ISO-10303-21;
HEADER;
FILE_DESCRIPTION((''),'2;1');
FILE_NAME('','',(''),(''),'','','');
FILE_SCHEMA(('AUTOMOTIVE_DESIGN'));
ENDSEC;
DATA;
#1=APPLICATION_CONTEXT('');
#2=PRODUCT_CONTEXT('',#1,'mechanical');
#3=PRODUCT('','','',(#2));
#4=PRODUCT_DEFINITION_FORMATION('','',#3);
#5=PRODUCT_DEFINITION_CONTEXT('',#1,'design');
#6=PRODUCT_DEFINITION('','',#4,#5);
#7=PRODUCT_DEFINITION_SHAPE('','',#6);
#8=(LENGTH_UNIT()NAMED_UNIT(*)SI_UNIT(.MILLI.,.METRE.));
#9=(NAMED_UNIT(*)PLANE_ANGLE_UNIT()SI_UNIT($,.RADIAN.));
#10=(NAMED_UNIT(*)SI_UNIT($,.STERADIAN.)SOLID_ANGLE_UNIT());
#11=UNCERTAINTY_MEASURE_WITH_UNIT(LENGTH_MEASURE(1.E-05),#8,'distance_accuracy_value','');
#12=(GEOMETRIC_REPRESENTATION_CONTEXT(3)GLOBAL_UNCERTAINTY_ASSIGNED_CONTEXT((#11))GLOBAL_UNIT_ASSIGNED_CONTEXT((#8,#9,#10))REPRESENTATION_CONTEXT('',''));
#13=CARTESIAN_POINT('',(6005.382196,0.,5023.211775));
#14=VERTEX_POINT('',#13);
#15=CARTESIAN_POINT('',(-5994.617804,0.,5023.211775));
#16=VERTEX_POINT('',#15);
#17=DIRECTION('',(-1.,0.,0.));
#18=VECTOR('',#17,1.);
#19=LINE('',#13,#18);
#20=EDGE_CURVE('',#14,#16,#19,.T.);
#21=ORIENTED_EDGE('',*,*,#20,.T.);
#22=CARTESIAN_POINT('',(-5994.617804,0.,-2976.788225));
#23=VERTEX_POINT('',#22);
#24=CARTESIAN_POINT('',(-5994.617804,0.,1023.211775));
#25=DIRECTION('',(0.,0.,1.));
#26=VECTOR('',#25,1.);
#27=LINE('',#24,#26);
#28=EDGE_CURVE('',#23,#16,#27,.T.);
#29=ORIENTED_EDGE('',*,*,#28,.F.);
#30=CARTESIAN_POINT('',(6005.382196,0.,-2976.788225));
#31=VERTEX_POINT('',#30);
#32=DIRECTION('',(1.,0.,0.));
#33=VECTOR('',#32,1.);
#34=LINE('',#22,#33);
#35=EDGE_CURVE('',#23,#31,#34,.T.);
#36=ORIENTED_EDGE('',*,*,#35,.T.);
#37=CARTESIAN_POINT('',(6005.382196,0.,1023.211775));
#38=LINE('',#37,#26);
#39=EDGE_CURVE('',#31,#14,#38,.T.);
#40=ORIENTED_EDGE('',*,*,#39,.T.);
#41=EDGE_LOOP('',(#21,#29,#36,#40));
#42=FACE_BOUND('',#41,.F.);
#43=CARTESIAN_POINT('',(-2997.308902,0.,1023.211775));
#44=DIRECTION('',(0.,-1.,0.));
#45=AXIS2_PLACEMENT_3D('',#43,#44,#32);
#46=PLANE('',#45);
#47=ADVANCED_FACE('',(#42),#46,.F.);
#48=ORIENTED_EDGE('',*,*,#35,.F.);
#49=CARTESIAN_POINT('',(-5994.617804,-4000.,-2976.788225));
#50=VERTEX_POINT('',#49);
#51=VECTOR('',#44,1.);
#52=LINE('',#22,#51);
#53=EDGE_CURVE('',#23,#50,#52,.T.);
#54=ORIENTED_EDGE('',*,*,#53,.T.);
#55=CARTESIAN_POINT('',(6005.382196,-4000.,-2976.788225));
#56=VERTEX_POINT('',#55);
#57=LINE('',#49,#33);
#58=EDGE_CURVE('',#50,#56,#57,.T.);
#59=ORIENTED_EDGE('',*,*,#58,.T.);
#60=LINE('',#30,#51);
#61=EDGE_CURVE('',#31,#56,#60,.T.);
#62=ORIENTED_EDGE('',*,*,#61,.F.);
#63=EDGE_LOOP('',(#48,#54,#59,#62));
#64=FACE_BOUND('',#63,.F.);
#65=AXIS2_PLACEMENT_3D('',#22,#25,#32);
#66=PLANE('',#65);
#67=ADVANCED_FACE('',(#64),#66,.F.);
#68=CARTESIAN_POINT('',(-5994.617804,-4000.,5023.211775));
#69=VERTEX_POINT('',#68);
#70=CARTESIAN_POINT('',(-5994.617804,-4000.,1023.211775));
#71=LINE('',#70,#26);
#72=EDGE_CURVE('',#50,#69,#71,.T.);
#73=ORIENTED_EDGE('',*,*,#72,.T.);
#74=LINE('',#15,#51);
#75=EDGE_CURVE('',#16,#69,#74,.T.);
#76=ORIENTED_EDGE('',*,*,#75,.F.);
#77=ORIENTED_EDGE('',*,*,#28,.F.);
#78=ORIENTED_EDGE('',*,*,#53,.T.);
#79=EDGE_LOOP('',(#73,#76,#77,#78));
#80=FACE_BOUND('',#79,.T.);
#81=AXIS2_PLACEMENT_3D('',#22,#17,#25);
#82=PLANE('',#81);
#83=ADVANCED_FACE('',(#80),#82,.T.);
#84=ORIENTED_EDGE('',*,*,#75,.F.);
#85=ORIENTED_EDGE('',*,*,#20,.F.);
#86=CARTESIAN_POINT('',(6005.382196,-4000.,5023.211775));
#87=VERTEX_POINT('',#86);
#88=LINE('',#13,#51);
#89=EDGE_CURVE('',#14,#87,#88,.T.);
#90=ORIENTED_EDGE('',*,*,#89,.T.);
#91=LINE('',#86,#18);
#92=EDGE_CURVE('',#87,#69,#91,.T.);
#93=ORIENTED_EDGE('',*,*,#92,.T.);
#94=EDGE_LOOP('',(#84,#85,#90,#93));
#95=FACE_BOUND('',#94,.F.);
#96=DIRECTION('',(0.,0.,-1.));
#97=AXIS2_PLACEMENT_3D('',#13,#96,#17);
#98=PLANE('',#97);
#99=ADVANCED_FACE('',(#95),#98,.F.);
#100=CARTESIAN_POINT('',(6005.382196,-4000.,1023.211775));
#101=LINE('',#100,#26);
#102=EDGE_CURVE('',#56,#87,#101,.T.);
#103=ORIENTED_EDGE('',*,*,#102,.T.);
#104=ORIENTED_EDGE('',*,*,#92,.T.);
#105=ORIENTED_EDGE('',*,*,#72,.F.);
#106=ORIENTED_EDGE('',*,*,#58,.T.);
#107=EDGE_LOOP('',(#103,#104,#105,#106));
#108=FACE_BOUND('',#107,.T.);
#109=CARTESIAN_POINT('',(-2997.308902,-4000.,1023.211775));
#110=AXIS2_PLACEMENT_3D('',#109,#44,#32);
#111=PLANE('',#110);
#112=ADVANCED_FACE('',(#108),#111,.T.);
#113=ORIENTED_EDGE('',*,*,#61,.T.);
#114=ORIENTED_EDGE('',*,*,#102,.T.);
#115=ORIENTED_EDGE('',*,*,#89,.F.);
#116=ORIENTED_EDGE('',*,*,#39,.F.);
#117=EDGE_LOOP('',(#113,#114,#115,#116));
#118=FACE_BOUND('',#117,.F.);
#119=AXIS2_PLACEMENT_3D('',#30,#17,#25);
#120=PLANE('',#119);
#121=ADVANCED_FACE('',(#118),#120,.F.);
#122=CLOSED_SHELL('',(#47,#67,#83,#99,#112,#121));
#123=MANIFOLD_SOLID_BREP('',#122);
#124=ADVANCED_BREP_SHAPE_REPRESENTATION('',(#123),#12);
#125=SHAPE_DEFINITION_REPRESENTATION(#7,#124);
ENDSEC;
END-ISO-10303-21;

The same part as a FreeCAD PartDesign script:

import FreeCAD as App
import Part
import Sketcher


def add_polygon(sketch, points):
    """Adds a closed chain of lines whose ends are joined by coincident constraints."""
    first, n = sketch.GeometryCount, len(points)
    for a, b in zip(points, points[1:] + points[:1]):
        sketch.addGeometry(Part.LineSegment(App.Vector(*a, 0), App.Vector(*b, 0)), False)
    for i in range(n):
        sketch.addConstraint(Sketcher.Constraint("Coincident", first + i, 2, first + (i + 1) % n, 1))

doc = App.newDocument("Part")
params = doc.addObject("Spreadsheet::Sheet", "Params")
for row, (alias, value) in enumerate([
    ("sketch1_width", "12000 mm"),
    ("sketch1_height", "8000 mm"),
    ("pad1_length", "4000 mm"),
], start=1):
    params.set(f"A{row}", alias)
    params.set(f"B{row}", "=" + value)
    params.setAlias(f"B{row}", alias)

body = doc.addObject("PartDesign::Body", "Body")

sketch1 = body.newObject("Sketcher::SketchObject", "Sketch")
sketch1.AttachmentSupport = (doc.getObject("XZ_Plane"), [""])
sketch1.MapMode = "FlatFace"
add_polygon(sketch1, [(-5995, 5023), (-5995, -2977), (6005, -2977), (6005, 5023)])
sketch1.addConstraint(Sketcher.Constraint("Vertical", 0))
sketch1.addConstraint(Sketcher.Constraint("Horizontal", 1))
sketch1.addConstraint(Sketcher.Constraint("Vertical", 2))
sketch1.addConstraint(Sketcher.Constraint("Horizontal", 3))
sketch1.addConstraint(Sketcher.Constraint("DistanceX", 1, 1, 1, 2, 12000.0))
sketch1.addConstraint(Sketcher.Constraint("DistanceY", 0, 2, 0, 1, 8000.0))
sketch1.addConstraint(Sketcher.Constraint("DistanceX", 0, 2, -1, 1, 5994.617804))
sketch1.addConstraint(Sketcher.Constraint("DistanceY", 0, 2, -1, 1, 2976.788225))
sketch1.setExpression("Constraints[8]", "Params.sketch1_width")
sketch1.setExpression("Constraints[9]", "Params.sketch1_height")
pad1 = body.newObject("PartDesign::Pad", "Pad")
pad1.Profile = sketch1
pad1.setExpression("Length", "Params.pad1_length")

doc.recompute()
